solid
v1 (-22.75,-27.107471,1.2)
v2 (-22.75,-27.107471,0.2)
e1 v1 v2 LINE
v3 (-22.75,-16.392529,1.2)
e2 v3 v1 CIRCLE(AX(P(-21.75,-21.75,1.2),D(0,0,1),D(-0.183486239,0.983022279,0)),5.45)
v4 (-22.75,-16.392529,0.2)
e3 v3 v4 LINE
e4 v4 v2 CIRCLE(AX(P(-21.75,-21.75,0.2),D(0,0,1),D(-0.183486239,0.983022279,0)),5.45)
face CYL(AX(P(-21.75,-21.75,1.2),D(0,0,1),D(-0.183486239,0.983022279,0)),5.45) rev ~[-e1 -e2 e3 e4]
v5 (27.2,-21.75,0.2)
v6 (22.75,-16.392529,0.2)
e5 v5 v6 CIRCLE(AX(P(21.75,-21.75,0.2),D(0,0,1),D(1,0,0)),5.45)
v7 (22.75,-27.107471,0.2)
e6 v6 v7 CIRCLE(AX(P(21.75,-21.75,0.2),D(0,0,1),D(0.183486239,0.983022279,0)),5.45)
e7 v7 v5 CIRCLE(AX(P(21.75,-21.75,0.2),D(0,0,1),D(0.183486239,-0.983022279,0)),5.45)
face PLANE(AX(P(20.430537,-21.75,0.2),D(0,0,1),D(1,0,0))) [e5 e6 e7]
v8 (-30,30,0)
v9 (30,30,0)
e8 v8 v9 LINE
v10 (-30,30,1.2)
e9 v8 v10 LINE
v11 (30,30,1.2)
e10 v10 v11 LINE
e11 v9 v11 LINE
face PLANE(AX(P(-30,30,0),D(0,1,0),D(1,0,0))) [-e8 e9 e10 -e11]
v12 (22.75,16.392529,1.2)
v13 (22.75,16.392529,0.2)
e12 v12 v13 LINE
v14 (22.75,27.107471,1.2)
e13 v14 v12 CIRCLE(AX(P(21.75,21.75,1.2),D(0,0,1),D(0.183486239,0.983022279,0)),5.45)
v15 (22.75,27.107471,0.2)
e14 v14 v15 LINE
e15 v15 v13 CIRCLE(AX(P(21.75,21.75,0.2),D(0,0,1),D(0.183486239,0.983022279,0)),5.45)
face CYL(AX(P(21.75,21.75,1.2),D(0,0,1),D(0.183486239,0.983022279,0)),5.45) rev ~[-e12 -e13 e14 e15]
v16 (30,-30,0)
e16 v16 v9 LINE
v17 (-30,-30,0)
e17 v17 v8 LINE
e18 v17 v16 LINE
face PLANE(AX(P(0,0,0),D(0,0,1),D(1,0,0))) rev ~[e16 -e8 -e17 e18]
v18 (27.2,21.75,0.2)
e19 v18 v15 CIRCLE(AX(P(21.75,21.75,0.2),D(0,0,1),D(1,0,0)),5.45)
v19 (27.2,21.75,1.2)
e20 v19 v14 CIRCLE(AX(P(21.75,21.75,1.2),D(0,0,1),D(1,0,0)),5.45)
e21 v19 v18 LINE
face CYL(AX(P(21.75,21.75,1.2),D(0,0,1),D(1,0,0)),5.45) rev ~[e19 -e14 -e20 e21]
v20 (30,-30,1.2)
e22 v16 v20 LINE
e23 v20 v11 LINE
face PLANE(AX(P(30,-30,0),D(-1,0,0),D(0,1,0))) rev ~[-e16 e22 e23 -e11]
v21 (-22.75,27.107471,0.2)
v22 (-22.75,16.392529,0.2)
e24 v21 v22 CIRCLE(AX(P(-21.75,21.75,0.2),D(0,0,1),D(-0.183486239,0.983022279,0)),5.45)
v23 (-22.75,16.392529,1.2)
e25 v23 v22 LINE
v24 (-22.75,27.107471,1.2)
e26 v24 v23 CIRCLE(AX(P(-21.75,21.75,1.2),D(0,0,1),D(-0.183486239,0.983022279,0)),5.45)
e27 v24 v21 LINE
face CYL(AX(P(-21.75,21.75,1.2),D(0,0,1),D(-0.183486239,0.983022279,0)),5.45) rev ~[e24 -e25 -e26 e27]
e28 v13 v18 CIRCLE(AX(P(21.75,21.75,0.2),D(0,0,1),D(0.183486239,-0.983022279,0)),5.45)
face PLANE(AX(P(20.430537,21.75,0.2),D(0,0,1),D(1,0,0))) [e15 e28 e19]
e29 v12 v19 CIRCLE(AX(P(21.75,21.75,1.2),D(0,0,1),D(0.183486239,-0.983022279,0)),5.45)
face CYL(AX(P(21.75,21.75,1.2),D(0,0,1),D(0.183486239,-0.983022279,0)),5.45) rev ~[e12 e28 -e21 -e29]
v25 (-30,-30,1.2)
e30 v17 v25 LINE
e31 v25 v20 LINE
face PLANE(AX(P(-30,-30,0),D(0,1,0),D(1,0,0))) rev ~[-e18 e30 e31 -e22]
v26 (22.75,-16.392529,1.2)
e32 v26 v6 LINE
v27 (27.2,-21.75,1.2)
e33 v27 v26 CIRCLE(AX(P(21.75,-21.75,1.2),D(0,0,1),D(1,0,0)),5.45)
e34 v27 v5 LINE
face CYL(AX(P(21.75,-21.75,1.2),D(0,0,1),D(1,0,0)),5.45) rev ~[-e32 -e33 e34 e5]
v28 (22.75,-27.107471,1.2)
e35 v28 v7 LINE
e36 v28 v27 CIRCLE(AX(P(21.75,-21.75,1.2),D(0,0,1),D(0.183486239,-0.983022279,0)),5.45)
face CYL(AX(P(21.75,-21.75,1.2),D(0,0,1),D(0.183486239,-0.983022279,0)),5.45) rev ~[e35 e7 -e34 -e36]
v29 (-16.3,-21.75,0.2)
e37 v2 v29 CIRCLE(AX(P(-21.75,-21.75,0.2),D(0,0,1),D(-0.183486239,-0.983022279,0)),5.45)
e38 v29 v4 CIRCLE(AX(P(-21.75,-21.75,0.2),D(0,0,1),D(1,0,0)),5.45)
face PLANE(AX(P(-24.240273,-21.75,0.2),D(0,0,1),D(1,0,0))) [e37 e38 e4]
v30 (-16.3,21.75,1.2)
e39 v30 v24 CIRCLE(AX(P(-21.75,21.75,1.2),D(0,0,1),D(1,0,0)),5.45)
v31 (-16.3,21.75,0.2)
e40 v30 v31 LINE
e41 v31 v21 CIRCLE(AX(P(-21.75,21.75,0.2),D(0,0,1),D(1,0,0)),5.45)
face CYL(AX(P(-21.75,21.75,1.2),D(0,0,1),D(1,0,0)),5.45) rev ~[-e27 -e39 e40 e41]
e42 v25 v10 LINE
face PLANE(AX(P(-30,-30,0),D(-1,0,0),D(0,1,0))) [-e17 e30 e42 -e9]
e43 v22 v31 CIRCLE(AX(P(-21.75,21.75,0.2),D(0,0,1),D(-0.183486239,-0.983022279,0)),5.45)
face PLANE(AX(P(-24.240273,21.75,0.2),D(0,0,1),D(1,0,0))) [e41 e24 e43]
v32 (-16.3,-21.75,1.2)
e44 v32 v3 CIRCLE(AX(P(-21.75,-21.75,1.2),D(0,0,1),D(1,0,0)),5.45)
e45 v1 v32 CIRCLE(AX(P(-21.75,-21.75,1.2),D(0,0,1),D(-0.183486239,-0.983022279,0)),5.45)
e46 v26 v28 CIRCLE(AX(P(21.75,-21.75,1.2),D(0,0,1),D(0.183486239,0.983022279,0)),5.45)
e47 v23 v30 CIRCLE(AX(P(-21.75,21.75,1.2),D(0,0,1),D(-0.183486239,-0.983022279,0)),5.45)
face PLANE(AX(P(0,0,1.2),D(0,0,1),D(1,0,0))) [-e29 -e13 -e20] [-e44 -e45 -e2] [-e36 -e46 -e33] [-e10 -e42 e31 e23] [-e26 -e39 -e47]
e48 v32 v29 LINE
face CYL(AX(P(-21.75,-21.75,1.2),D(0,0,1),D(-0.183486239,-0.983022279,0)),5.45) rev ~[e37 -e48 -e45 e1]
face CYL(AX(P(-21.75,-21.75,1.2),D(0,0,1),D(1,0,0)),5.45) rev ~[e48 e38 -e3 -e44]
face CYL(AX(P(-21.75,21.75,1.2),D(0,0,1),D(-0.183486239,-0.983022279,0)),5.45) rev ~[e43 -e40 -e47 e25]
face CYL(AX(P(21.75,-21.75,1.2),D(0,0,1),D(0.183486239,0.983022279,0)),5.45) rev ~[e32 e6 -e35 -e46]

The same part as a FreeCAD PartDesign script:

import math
import FreeCAD as App
import Part
import Sketcher
from FreeCAD import Vector


def add_polygon(sketch, points):
    """Adds a closed chain of lines whose ends are joined by coincident constraints."""
    first, n = sketch.GeometryCount, len(points)
    for a, b in zip(points, points[1:] + points[:1]):
        sketch.addGeometry(Part.LineSegment(App.Vector(*a, 0), App.Vector(*b, 0)), False)
    for i in range(n):
        sketch.addConstraint(Sketcher.Constraint("Coincident", first + i, 2, first + (i + 1) % n, 1))

doc = App.newDocument("Part")
body = doc.addObject("PartDesign::Body", "Body")

sketch1 = body.newObject("Sketcher::SketchObject", "Sketch")
sketch1.AttachmentSupport = (doc.getObject("XY_Plane"), [""])
sketch1.MapMode = "FlatFace"
add_polygon(sketch1, [(-30, 30), (-30, -30), (30, -30), (30, 30)])
sketch1.addConstraint(Sketcher.Constraint("Vertical", 0))
sketch1.addConstraint(Sketcher.Constraint("Horizontal", 1))
sketch1.addConstraint(Sketcher.Constraint("Vertical", 2))
sketch1.addConstraint(Sketcher.Constraint("Horizontal", 3))
sketch1.addConstraint(Sketcher.Constraint("Symmetric", 0, 2, 2, 2, -1, 1))
sketch1.addConstraint(Sketcher.Constraint("Equal", 3, 0))
sketch1.addConstraint(Sketcher.Constraint("DistanceX", 1, 1, 1, 2, 60.0))
pad1 = body.newObject("PartDesign::Pad", "Pad")
pad1.Profile = sketch1
pad1.Length = 1.2

sketch2 = body.newObject("Sketcher::SketchObject", "Sketch001")
sketch2.AttachmentSupport = (doc.getObject("XY_Plane"), [""])
sketch2.MapMode = "FlatFace"
sketch2.AttachmentOffset = App.Placement(Vector(0, 0, 1.2), App.Rotation())
sketch2.addGeometry(Part.ArcOfCircle(Part.Circle(Vector(-22, 22, 0), Vector(0, 0, 1), 5), math.radians(101), math.radians(259)), False)
sketch2.addGeometry(Part.ArcOfCircle(Part.Circle(Vector(-22, 22, 0), Vector(0, 0, 1), 5), math.radians(-101), math.radians(0)), False)
sketch2.addGeometry(Part.ArcOfCircle(Part.Circle(Vector(-22, 22, 0), Vector(0, 0, 1), 5), math.radians(0), math.radians(101)), False)
sketch2.addGeometry(Part.ArcOfCircle(Part.Circle(Vector(22, 22, 0), Vector(0, 0, 1), 5), math.radians(79), math.radians(281)), False)
sketch2.addGeometry(Part.ArcOfCircle(Part.Circle(Vector(22, 22, 0), Vector(0, 0, 1), 5), math.radians(-79), math.radians(0)), False)
sketch2.addGeometry(Part.ArcOfCircle(Part.Circle(Vector(22, 22, 0), Vector(0, 0, 1), 5), math.radians(0), math.radians(79)), False)
sketch2.addGeometry(Part.ArcOfCircle(Part.Circle(Vector(22, -22, 0), Vector(0, 0, 1), 5), math.radians(79), math.radians(281)), False)
sketch2.addGeometry(Part.ArcOfCircle(Part.Circle(Vector(22, -22, 0), Vector(0, 0, 1), 5), math.radians(-79), math.radians(0)), False)
sketch2.addGeometry(Part.ArcOfCircle(Part.Circle(Vector(22, -22, 0), Vector(0, 0, 1), 5), math.radians(0), math.radians(79)), False)
sketch2.addGeometry(Part.ArcOfCircle(Part.Circle(Vector(-22, -22, 0), Vector(0, 0, 1), 5), math.radians(101), math.radians(259)), False)
sketch2.addGeometry(Part.ArcOfCircle(Part.Circle(Vector(-22, -22, 0), Vector(0, 0, 1), 5), math.radians(-101), math.radians(0)), False)
sketch2.addGeometry(Part.ArcOfCircle(Part.Circle(Vector(-22, -22, 0), Vector(0, 0, 1), 5), math.radians(0), math.radians(101)), False)
sketch2.addConstraint(Sketcher.Constraint("Tangent", 0, 2, 1, 1))
sketch2.addConstraint(Sketcher.Constraint("Tangent", 1, 2, 2, 1))
sketch2.addConstraint(Sketcher.Constraint("Tangent", 2, 2, 0, 1))
sketch2.addConstraint(Sketcher.Constraint("Tangent", 3, 2, 4, 1))
sketch2.addConstraint(Sketcher.Constraint("Tangent", 4, 2, 5, 1))
sketch2.addConstraint(Sketcher.Constraint("Tangent", 5, 2, 3, 1))
sketch2.addConstraint(Sketcher.Constraint("Tangent", 6, 2, 7, 1))
sketch2.addConstraint(Sketcher.Constraint("Tangent", 7, 2, 8, 1))
sketch2.addConstraint(Sketcher.Constraint("Tangent", 8, 2, 6, 1))
sketch2.addConstraint(Sketcher.Constraint("Tangent", 9, 2, 10, 1))
sketch2.addConstraint(Sketcher.Constraint("Tangent", 10, 2, 11, 1))
sketch2.addConstraint(Sketcher.Constraint("Tangent", 11, 2, 9, 1))
sketch2.addConstraint(Sketcher.Constraint("Equal", 2, 3))
sketch2.addConstraint(Sketcher.Constraint("Equal", 5, 6))
sketch2.addConstraint(Sketcher.Constraint("Equal", 8, 9))
sketch2.addConstraint(Sketcher.Constraint("Symmetric", 0, 3, 6, 3, -1, 1))
sketch2.addConstraint(Sketcher.Constraint("Symmetric", 3, 3, 9, 3, -1, 1))
sketch2.addConstraint(Sketcher.Constraint("Symmetric", 0, 3, 3, 3, -2))
sketch2.addConstraint(Sketcher.Constraint("Horizontal", 5, 3, 1, 2))
sketch2.addConstraint(Sketcher.Constraint("Horizontal", 0, 2, 3, 2))
sketch2.addConstraint(Sketcher.Constraint("Horizontal", 1, 2, 4, 2))
sketch2.addConstraint(Sketcher.Constraint("Horizontal", 2, 2, 5, 2))
sketch2.addConstraint(Sketcher.Constraint("Horizontal", 11, 3, 7, 2))
sketch2.addConstraint(Sketcher.Constraint("Horizontal", 6, 2, 9, 2))
sketch2.addConstraint(Sketcher.Constraint("Horizontal", 7, 2, 10, 2))
sketch2.addConstraint(Sketcher.Constraint("Horizontal", 8, 2, 11, 2))
sketch2.addConstraint(Sketcher.Constraint("Vertical", 0, 2, 2, 2))
sketch2.addConstraint(Sketcher.Constraint("Vertical", 5, 2, 6, 2))
sketch2.addConstraint(Sketcher.Constraint("Vertical", 6, 2, 8, 2))
sketch2.addConstraint(Sketcher.Constraint("Radius", 0, 5.45))
sketch2.addConstraint(Sketcher.Constraint("DistanceX", 0, 2, 0, 3, 1.0))
sketch2.addConstraint(Sketcher.Constraint("DistanceX", 1, 2, -1, 1, 16.3))
sketch2.addConstraint(Sketcher.Constraint("DistanceY", 6, 3, 3, 3, 43.5))
pocket1 = body.newObject("PartDesign::Pocket", "Pocket")
pocket1.Profile = sketch2
pocket1.Length = 1

doc.recompute()
